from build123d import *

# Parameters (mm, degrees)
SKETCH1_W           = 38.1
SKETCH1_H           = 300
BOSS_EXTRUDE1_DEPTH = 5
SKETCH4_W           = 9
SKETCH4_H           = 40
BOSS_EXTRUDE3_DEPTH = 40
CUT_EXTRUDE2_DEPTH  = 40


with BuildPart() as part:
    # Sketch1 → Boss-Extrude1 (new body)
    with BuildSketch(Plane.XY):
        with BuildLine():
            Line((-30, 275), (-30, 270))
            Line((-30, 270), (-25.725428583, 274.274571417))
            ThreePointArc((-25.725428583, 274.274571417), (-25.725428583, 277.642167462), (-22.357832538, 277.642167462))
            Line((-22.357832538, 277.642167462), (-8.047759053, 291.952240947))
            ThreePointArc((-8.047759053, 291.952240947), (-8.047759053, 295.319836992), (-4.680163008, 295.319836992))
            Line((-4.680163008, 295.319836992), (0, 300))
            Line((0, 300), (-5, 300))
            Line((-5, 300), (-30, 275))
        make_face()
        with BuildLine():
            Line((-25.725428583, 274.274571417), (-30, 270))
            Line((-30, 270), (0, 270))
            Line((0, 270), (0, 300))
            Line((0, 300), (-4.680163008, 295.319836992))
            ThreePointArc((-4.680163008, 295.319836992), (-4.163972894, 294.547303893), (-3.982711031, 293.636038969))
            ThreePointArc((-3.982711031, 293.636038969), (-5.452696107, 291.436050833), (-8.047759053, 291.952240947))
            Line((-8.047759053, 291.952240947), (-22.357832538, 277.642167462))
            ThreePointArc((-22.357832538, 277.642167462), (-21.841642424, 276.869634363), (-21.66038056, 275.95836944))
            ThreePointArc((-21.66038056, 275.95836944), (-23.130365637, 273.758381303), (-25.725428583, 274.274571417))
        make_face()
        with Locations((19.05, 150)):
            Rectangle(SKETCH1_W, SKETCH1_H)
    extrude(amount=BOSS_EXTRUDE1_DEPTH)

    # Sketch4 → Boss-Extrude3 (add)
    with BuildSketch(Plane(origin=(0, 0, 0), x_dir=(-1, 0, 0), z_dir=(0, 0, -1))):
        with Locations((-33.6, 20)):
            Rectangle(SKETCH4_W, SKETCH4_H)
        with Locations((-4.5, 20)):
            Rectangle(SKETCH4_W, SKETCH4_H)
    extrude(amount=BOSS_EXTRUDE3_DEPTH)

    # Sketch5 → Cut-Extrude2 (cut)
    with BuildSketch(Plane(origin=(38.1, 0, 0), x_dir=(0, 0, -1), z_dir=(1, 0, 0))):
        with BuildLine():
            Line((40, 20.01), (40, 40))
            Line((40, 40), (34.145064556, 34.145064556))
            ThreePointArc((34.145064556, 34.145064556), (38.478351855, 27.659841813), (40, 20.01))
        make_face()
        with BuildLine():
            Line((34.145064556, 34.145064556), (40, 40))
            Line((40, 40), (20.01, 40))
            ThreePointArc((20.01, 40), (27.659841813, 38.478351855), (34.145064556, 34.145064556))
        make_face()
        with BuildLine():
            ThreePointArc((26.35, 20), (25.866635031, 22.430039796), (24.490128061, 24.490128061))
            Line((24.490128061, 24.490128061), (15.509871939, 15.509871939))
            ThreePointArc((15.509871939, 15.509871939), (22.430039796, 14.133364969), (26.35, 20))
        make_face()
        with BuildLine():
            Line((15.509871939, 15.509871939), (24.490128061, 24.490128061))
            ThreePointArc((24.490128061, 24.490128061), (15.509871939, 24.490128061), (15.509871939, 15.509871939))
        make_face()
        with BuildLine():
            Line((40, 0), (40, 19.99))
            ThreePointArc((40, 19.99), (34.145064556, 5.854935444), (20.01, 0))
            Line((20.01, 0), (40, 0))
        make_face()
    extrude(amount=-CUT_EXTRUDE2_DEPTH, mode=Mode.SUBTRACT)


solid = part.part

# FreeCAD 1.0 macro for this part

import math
import FreeCAD as App
import Part
import Sketcher
from FreeCAD import Vector
Q = App.Units.Quantity

doc = App.newDocument("Part")
body = doc.addObject("PartDesign::Body", "Body")

sketch1 = body.newObject("Sketcher::SketchObject", "Sketch")
sketch1.AttachmentSupport = (doc.getObject("XY_Plane"), [""])
sketch1.MapMode = "FlatFace"
sketch1.addGeometry([
    Part.LineSegment(Vector(-30, 275, 0), Vector(-30, 270, 0)),
    Part.LineSegment(Vector(-30, 270, 0), Vector(0, 270, 0)),
    Part.LineSegment(Vector(0, 270, 0), Vector(0, 0, 0)),
    Part.LineSegment(Vector(0, 0, 0), Vector(38.1, 0, 0)),
    Part.LineSegment(Vector(38.1, 0, 0), Vector(38.1, 300, 0)),
    Part.LineSegment(Vector(38.1, 300, 0), Vector(-5, 300, 0)),
    Part.LineSegment(Vector(-5, 300, 0), Vector(-30, 275, 0)),
    Part.ArcOfCircle(Part.Circle(Vector(-24, 276, 0), Vector(0, 0, 1), 2.4), math.radians(45), math.radians(225)),
    Part.ArcOfCircle(Part.Circle(Vector(-24, 276, 0), Vector(0, 0, 1), 2.4), math.radians(0), math.radians(45)),
    Part.ArcOfCircle(Part.Circle(Vector(-24, 276, 0), Vector(0, 0, 1), 2.4), math.radians(-135), math.radians(0)),
    Part.ArcOfCircle(Part.Circle(Vector(-6.4, 293.6, 0), Vector(0, 0, 1), 2.4), math.radians(45), math.radians(225)),
    Part.ArcOfCircle(Part.Circle(Vector(-6.4, 293.6, 0), Vector(0, 0, 1), 2.4), math.radians(0), math.radians(45)),
    Part.ArcOfCircle(Part.Circle(Vector(-6.4, 293.6, 0), Vector(0, 0, 1), 2.4), math.radians(-135), math.radians(0)),
], False)
sketch1.addConstraint([
    Sketcher.Constraint("Coincident", 0, 2, 1, 1),
    Sketcher.Constraint("Coincident", 1, 2, 2, 1),
    Sketcher.Constraint("Coincident", 2, 2, 3, 1),
    Sketcher.Constraint("Coincident", 3, 2, 4, 1),
    Sketcher.Constraint("Coincident", 4, 2, 5, 1),
    Sketcher.Constraint("Coincident", 5, 2, 6, 1),
    Sketcher.Constraint("Coincident", 6, 2, 0, 1),
    Sketcher.Constraint("Tangent", 7, 1, 8, 2),
    Sketcher.Constraint("Tangent", 8, 1, 9, 2),
    Sketcher.Constraint("Tangent", 9, 1, 7, 2),
    Sketcher.Constraint("Tangent", 10, 1, 11, 2),
    Sketcher.Constraint("Tangent", 11, 1, 12, 2),
    Sketcher.Constraint("Tangent", 12, 1, 10, 2),
    Sketcher.Constraint("Vertical", 0),
    Sketcher.Constraint("Horizontal", 1),
    Sketcher.Constraint("Vertical", 2),
    Sketcher.Constraint("Horizontal", 3),
    Sketcher.Constraint("Vertical", 4),
    Sketcher.Constraint("Horizontal", 5),
    Sketcher.Constraint("Coincident", 2, 2, -1, 1),
    Sketcher.Constraint("Equal", 9, 10),
    Sketcher.Constraint("Horizontal", 9, 3, 8, 1),
    Sketcher.Constraint("Horizontal", 12, 3, 11, 1),
    Sketcher.Constraint("DistanceX", 1, 1, 1, 2, 30.0),
    Sketcher.Constraint("DistanceY", 0, 2, 0, 1, 5.0),
    Sketcher.Constraint("DistanceY", 2, 2, 2, 1, 270.0),
    Sketcher.Constraint("DistanceY", 4, 1, 4, 2, 300.0),
    Sketcher.Constraint("Angle", 6, Q("-135 deg")),
    Sketcher.Constraint("DistanceX", 3, 1, 3, 2, 38.1),
    Sketcher.Constraint("Radius", 7, 2.38125),
    Sketcher.Constraint("DistanceX", 9, 3, 7, 1, 1.683798),
    Sketcher.Constraint("DistanceX", 9, 1, 8, 3, 1.683798),
    Sketcher.Constraint("DistanceX", 11, 3, 10, 1, 1.683798),
    Sketcher.Constraint("DistanceX", 12, 1, 10, 3, 1.683798),
    Sketcher.Constraint("DistanceX", 7, 3, -1, 1, 24.041631),
    Sketcher.Constraint("DistanceY", -1, 1, 7, 3, 275.958369),
    Sketcher.Constraint("DistanceX", 10, 3, -1, 1, 6.363961),
    Sketcher.Constraint("DistanceY", -1, 1, 10, 3, 293.636039),
])
pad1 = body.newObject("PartDesign::Pad", "Pad")
pad1.Profile = sketch1
pad1.Length = 5

sketch2 = body.newObject("Sketcher::SketchObject", "Sketch001")
sketch2.AttachmentSupport = (doc.getObject("XY_Plane"), [""])
sketch2.MapMode = "FlatFace"
sketch2.addGeometry([
    Part.LineSegment(Vector(38, 40, 0), Vector(38, 0, 0)),
    Part.LineSegment(Vector(38, 0, 0), Vector(29, 0, 0)),
    Part.LineSegment(Vector(29, 0, 0), Vector(29, 40, 0)),
    Part.LineSegment(Vector(29, 40, 0), Vector(38, 40, 0)),
    Part.LineSegment(Vector(9, 40, 0), Vector(9, 0, 0)),
    Part.LineSegment(Vector(9, 0, 0), Vector(0, 0, 0)),
    Part.LineSegment(Vector(0, 0, 0), Vector(0, 40, 0)),
    Part.LineSegment(Vector(0, 40, 0), Vector(9, 40, 0)),
], False)
sketch2.addConstraint([
    Sketcher.Constraint("Coincident", 0, 2, 1, 1),
    Sketcher.Constraint("Coincident", 1, 2, 2, 1),
    Sketcher.Constraint("Coincident", 2, 2, 3, 1),
    Sketcher.Constraint("Coincident", 3, 2, 0, 1),
    Sketcher.Constraint("Coincident", 4, 2, 5, 1),
    Sketcher.Constraint("Coincident", 5, 2, 6, 1),
    Sketcher.Constraint("Coincident", 6, 2, 7, 1),
    Sketcher.Constraint("Coincident", 7, 2, 4, 1),
    Sketcher.Constraint("Vertical", 0),
    Sketcher.Constraint("Horizontal", 1),
    Sketcher.Constraint("Vertical", 2),
    Sketcher.Constraint("Horizontal", 3),
    Sketcher.Constraint("Vertical", 4),
    Sketcher.Constraint("Horizontal", 5),
    Sketcher.Constraint("Vertical", 6),
    Sketcher.Constraint("Horizontal", 7),
    Sketcher.Constraint("Coincident", 5, 2, -1, 1),
    Sketcher.Constraint("PointOnObject", 0, 2, -1),
    Sketcher.Constraint("Horizontal", 3, 2, 6, 2),
    Sketcher.Constraint("Equal", 3, 5),
    Sketcher.Constraint("DistanceX", 1, 2, 1, 1, 9.0),
    Sketcher.Constraint("DistanceY", 0, 2, 0, 1, 40.0),
    Sketcher.Constraint("DistanceX", -1, 1, 0, 2, 38.1),
])
pad2 = body.newObject("PartDesign::Pad", "Pad001")
pad2.Profile = sketch2
pad2.Length = 40
pad2.Reversed = True

sketch3 = body.newObject("Sketcher::SketchObject", "Sketch002")
sketch3.AttachmentSupport = (doc.getObject("YZ_Plane"), [""])
sketch3.MapMode = "FlatFace"
sketch3.AttachmentOffset = App.Placement(Vector(0, 0, 38.1), App.Rotation())
sketch3.addGeometry([
    Part.LineSegment(Vector(20, -40, 0), Vector(40, -40, 0)),
    Part.LineSegment(Vector(40, -40, 0), Vector(40, -20, 0)),
    Part.ArcOfCircle(Part.Circle(Vector(20, -20, 0), Vector(0, 0, 1), 20), math.radians(-45), math.radians(0)),
    Part.ArcOfCircle(Part.Circle(Vector(20, -20, 0), Vector(0, 0, 1), 20), math.radians(-90), math.radians(-45)),
    Part.ArcOfCircle(Part.Circle(Vector(20, -20, 0), Vector(0, 0, 1), 6.4), math.radians(-90), math.radians(-45)),
    Part.ArcOfCircle(Part.Circle(Vector(20, -20, 0), Vector(0, 0, 1), 6.4), math.radians(-45), math.radians(135)),
    Part.ArcOfCircle(Part.Circle(Vector(20, -20, 0), Vector(0, 0, 1), 6.4), math.radians(135), math.radians(270)),
    Part.LineSegment(Vector(0, -40, 0), Vector(20, -40, 0)),
    Part.ArcOfCircle(Part.Circle(Vector(20, -20, 0), Vector(0, 0, 1), 20), math.radians(180), math.radians(270)),
    Part.LineSegment(Vector(0, -20, 0), Vector(0, -40, 0)),
], False)
sketch3.addConstraint([
    Sketcher.Constraint("Coincident", 0, 2, 1, 1),
    Sketcher.Constraint("Tangent", 1, 2, 2, 2),
    Sketcher.Constraint("Tangent", 2, 1, 3, 2),
    Sketcher.Constraint("Tangent", 3, 1, 0, 1),
    Sketcher.Constraint("Tangent", 4, 2, 5, 1),
    Sketcher.Constraint("Tangent", 5, 2, 6, 1),
    Sketcher.Constraint("Tangent", 6, 2, 4, 1),
    Sketcher.Constraint("Tangent", 7, 2, 8, 2),
    Sketcher.Constraint("Tangent", 8, 1, 9, 1),
    Sketcher.Constraint("Coincident", 9, 2, 7, 1),
    Sketcher.Constraint("Horizontal", 0),
    Sketcher.Constraint("Vertical", 1),
    Sketcher.Constraint("Horizontal", 7),
    Sketcher.Constraint("Vertical", 9),
    Sketcher.Constraint("Equal", 2, 3),
    Sketcher.Constraint("Equal", 3, 8),
    Sketcher.Constraint("PointOnObject", 8, 1, -2),
    Sketcher.Constraint("Horizontal", 3, 3, 8, 3),
    Sketcher.Constraint("Vertical", 5, 3, 6, 2),
    Sketcher.Constraint("Radius", 2, 19.99),
    Sketcher.Constraint("Radius", 4, 6.35),
    Sketcher.Constraint("DistanceX", -1, 1, 4, 3, 20.0),
    Sketcher.Constraint("DistanceY", 4, 3, -1, 1, 20.0),
    Sketcher.Constraint("DistanceX", -1, 1, 0, 2, 40.0),
    Sketcher.Constraint("DistanceY", 0, 2, -1, 1, 40.0),
    Sketcher.Constraint("DistanceX", -1, 1, 4, 2, 24.490128),
    Sketcher.Constraint("DistanceX", -1, 1, 5, 2, 15.509872),
    Sketcher.Constraint("DistanceX", -1, 1, 2, 1, 34.145065),
])
pocket1 = body.newObject("PartDesign::Pocket", "Pocket")
pocket1.Profile = sketch3
pocket1.Length = 40

doc.recompute()
